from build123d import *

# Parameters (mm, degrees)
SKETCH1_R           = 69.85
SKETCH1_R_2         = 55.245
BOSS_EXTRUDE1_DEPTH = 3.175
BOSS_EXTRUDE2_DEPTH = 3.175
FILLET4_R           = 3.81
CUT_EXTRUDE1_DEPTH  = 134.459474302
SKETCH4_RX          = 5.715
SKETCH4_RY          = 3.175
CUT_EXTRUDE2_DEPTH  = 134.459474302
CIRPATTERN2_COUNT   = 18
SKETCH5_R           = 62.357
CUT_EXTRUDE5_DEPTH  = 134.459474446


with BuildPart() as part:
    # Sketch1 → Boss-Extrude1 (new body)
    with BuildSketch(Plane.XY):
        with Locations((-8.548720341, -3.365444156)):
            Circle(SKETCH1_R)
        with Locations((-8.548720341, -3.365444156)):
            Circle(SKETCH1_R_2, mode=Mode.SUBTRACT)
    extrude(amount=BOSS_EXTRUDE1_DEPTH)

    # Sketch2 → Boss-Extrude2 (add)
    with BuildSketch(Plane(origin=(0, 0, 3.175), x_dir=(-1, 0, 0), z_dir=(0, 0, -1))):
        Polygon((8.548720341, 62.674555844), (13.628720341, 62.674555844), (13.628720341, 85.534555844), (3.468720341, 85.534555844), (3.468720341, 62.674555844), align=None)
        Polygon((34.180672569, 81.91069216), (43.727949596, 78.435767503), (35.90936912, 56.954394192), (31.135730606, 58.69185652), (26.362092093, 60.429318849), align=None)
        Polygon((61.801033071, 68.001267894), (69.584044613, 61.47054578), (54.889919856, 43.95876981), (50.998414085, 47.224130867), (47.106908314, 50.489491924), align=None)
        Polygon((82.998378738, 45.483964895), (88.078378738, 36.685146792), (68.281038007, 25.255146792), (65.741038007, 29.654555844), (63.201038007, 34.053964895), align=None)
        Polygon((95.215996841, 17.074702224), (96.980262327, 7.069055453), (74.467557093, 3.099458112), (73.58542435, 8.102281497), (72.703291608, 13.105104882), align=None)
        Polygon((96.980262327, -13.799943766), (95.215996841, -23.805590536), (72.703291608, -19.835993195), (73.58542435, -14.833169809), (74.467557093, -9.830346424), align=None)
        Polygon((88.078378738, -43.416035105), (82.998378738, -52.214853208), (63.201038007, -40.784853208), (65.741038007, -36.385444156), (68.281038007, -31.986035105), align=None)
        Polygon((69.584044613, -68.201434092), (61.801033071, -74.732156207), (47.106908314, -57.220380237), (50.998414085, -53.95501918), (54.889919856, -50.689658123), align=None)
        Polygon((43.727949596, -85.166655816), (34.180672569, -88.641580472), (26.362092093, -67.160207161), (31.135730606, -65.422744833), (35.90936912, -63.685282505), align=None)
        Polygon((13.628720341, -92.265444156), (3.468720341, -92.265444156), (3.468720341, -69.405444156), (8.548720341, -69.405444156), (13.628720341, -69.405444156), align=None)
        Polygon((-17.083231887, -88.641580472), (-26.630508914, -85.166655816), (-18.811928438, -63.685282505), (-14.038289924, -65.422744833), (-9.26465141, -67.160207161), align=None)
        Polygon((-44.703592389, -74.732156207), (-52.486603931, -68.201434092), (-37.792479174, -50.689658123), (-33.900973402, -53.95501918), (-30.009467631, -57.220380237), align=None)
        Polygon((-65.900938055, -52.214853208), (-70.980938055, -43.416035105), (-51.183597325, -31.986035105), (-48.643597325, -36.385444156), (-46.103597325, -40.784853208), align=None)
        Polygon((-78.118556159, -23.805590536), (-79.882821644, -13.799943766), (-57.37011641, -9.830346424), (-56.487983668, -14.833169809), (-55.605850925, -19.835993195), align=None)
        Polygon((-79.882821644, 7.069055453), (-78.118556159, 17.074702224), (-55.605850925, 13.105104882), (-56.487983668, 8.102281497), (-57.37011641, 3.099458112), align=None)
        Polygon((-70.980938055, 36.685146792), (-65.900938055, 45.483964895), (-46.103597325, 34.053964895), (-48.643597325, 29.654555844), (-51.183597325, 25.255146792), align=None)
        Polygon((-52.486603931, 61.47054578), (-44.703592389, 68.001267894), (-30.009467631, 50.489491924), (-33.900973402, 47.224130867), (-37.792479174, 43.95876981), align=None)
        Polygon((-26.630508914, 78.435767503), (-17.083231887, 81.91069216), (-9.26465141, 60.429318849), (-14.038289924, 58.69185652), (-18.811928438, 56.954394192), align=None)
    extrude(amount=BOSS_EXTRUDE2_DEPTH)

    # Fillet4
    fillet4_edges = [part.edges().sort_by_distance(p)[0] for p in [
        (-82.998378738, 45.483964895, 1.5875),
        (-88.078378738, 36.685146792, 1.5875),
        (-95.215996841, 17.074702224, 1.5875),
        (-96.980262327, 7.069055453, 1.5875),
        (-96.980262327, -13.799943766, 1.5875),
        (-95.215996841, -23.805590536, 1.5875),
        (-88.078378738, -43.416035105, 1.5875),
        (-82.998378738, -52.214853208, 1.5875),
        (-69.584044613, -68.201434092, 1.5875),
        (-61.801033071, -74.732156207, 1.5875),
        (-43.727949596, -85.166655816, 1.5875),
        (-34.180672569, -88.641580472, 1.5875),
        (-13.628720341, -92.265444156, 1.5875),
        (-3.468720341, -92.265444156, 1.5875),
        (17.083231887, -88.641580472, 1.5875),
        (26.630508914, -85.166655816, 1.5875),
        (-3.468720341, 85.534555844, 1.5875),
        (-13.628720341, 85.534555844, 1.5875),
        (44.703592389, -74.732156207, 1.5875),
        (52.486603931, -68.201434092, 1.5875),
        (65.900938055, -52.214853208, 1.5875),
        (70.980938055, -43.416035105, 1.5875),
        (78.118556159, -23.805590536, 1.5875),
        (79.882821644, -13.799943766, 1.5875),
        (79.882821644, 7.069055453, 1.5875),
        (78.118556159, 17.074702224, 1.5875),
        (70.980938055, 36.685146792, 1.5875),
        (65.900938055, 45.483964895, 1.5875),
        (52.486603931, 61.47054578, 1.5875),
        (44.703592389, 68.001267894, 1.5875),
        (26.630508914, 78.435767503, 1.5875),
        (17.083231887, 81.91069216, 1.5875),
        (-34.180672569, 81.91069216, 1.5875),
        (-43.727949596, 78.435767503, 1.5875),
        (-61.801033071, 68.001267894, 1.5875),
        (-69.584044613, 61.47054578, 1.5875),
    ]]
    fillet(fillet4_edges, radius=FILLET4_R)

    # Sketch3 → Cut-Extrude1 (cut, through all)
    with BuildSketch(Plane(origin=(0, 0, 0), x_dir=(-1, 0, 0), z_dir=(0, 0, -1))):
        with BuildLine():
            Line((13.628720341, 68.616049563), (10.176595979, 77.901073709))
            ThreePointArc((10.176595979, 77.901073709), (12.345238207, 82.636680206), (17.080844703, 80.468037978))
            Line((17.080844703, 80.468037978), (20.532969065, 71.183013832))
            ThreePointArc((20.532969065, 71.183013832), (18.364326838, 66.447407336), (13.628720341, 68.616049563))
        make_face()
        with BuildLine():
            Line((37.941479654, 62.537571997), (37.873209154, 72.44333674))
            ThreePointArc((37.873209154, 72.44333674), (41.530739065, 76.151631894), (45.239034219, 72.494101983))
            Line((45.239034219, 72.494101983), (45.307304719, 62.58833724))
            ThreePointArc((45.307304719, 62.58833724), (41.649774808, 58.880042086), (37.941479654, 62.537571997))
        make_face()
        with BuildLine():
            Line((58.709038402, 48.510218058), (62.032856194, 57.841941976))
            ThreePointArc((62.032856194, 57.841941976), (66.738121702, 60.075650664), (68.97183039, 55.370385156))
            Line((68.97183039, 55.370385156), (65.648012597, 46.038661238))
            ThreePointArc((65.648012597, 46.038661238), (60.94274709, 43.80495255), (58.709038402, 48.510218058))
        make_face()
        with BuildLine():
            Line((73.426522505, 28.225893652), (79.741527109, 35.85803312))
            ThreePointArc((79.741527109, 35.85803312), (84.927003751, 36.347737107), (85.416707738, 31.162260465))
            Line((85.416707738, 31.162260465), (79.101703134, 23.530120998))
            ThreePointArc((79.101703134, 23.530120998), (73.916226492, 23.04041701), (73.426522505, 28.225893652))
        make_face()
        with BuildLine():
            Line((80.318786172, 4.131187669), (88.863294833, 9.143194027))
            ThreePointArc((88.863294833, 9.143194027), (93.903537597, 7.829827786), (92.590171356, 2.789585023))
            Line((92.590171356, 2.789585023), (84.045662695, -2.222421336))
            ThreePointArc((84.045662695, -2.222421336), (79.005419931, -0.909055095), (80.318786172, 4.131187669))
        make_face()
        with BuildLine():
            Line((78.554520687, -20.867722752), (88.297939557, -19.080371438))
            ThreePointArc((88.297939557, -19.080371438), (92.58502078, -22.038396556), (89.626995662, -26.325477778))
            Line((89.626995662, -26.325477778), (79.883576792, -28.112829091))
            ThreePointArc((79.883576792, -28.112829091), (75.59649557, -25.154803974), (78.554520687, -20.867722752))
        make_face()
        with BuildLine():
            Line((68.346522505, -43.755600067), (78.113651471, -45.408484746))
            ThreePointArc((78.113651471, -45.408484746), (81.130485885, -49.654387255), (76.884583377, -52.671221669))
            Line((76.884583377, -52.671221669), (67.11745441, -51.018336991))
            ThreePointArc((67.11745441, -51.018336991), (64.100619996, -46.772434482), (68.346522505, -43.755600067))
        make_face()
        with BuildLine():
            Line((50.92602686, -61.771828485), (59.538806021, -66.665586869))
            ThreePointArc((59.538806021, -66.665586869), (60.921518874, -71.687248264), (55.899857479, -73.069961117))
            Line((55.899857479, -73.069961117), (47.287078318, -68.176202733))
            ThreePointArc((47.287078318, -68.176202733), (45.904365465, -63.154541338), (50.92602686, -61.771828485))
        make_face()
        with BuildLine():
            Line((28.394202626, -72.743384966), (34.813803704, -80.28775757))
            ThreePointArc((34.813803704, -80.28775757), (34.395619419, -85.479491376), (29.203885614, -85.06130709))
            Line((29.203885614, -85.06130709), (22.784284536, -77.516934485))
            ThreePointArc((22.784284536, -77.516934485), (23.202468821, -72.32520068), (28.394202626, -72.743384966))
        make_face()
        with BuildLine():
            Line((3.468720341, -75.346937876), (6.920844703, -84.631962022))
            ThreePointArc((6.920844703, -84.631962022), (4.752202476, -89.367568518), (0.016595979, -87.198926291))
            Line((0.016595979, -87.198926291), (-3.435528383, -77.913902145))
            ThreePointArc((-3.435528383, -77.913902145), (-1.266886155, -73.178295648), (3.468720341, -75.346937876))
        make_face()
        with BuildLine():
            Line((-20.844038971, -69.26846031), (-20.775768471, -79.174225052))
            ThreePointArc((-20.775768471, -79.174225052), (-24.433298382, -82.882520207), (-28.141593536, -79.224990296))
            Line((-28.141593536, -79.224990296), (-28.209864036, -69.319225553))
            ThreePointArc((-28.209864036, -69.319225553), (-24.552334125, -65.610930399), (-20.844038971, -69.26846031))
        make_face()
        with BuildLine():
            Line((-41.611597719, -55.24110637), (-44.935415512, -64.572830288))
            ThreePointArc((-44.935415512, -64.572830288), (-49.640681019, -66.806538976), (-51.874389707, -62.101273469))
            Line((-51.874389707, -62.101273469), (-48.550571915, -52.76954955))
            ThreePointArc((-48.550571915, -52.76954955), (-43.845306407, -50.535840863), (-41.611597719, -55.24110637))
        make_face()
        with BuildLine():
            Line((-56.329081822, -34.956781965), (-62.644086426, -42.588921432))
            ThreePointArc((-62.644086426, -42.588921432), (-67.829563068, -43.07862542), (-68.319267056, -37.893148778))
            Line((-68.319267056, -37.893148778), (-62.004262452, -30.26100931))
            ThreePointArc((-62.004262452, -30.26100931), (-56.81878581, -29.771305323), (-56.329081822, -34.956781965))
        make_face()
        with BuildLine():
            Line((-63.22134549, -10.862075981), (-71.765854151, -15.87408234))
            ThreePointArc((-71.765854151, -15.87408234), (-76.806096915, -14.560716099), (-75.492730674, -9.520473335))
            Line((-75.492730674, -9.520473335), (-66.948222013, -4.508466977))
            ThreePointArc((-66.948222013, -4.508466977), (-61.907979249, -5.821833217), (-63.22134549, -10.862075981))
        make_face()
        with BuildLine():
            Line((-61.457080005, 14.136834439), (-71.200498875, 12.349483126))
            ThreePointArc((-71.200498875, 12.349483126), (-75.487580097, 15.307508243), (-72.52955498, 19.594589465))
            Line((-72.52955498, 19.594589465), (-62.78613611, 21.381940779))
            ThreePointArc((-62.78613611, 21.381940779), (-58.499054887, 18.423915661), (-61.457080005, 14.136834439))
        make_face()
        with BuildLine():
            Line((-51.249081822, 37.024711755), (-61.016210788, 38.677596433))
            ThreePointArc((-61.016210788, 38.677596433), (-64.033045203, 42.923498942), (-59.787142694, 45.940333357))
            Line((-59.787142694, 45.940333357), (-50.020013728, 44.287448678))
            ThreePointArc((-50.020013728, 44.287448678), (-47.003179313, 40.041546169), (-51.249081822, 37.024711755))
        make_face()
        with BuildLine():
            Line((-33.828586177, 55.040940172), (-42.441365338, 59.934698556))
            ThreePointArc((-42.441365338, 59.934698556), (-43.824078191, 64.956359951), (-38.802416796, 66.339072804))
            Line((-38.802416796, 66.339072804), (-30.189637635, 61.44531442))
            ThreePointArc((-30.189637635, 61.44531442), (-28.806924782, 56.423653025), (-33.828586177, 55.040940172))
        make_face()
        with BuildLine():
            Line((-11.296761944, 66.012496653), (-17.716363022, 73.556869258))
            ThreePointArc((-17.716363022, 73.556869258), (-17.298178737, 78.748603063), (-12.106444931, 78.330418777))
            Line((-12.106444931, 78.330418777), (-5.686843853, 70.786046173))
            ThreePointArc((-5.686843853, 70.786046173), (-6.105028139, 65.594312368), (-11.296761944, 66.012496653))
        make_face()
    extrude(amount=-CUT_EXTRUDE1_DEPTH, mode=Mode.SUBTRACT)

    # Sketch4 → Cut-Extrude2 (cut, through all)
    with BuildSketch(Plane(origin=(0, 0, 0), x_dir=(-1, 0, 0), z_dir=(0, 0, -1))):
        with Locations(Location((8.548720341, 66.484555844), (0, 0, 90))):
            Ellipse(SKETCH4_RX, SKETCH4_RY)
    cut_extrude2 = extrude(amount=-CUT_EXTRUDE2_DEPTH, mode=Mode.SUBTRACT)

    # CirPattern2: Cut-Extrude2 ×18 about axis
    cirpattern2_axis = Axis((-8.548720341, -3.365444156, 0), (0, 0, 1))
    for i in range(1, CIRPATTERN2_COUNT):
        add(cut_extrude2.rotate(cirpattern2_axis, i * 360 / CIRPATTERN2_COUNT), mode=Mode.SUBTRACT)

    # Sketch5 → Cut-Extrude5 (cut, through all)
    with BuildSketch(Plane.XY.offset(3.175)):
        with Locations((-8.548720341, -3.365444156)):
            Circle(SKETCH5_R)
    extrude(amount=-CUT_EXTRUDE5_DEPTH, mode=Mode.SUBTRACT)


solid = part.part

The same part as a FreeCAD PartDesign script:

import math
import FreeCAD as App
import Part
import Sketcher
from FreeCAD import Vector
Q = App.Units.Quantity


def edges_at(feature, points):
    """Names of the edges that pass closest to the given points."""
    edges = feature.Shape.Edges
    near = lambda p: min(range(len(edges)), key=lambda i: edges[i].distToShape(Part.Vertex(*p))[0])
    return sorted({f"Edge{near(p) + 1}" for p in points})


def add_polygon(sketch, points):
    """Adds a closed chain of lines whose ends are joined by coincident constraints."""
    first, n = sketch.GeometryCount, len(points)
    for a, b in zip(points, points[1:] + points[:1]):
        sketch.addGeometry(Part.LineSegment(App.Vector(*a, 0), App.Vector(*b, 0)), False)
    for i in range(n):
        sketch.addConstraint(Sketcher.Constraint("Coincident", first + i, 2, first + (i + 1) % n, 1))

doc = App.newDocument("Part")
params = doc.addObject("Spreadsheet::Sheet", "Params")
for row, (alias, value) in enumerate([
    ("sketch1_diameter", "5.5 in"),
    ("sketch1_diameter2", "4.35 in"),
    ("pad1_length", "0.125 in"),
    ("sketch2_width", "0.4 in"),
    ("sketch2_height", "0.9 in"),
    ("sketch2_length", "0.4 in"),
    ("sketch2_length2", "0.9 in"),
    ("pad2_length", "0.125 in"),
    ("fillet_radius", "0.15 in"),
    ("sketch3_radius", "0.145 in"),
    ("sketch3_length", "0.39 in"),
    ("sketch5_diameter", "4.91 in"),
], start=1):
    params.set(f"A{row}", alias)
    params.set(f"B{row}", "=" + value)
    params.setAlias(f"B{row}", alias)

body = doc.addObject("PartDesign::Body", "Body")

# Sketch on XY plane
sketch1 = doc.addObject("Sketcher::SketchObject", "Sketch")
body.addObject(sketch1)
sketch1.AttachmentSupport = (doc.XY_Plane, [""])
sketch1.MapMode = "FlatFace"
sketch1.addGeometry([
    Part.Circle(Vector(-9, -3, 0), Vector(0, 0, 1), 70),
    Part.Circle(Vector(-9, -3, 0), Vector(0, 0, 1), 55),
], False)
sketch1.addConstraint([
    Sketcher.Constraint("Coincident", 1, 3, 0, 3),
    Sketcher.Constraint("Diameter", 0, Q("5.5 in")),
    Sketcher.Constraint("Diameter", 1, Q("4.35 in")),
    Sketcher.Constraint("DistanceX", 0, 3, -1, 1, 8.54872),
    Sketcher.Constraint("DistanceY", 0, 3, -1, 1, 3.365444),
])
sketch1.setExpression("Constraints[1]", "Params.sketch1_diameter")
sketch1.setExpression("Constraints[2]", "Params.sketch1_diameter2")
pad1 = doc.addObject("PartDesign::Pad", "Pad")
body.addObject(pad1)
pad1.Profile = sketch1
pad1.setExpression("Length", "Params.pad1_length")

# Sketch on XY plane
sketch2 = doc.addObject("Sketcher::SketchObject", "Sketch001")
body.addObject(sketch2)
sketch2.AttachmentSupport = (doc.XY_Plane, [""])
sketch2.MapMode = "FlatFace"
sketch2.AttachmentOffset = App.Placement(Vector(0, 0, 0.125 * 25.4), App.Rotation())
add_polygon(sketch2, [(-14, 63), (-14, 86), (-3, 86), (-3, 63)])  # lines 0-3
add_polygon(sketch2, [(-44, 78), (-34, 82), (-26, 60), (-31, 59), (-36, 57)])  # lines 4-8
add_polygon(sketch2, [(-70, 61), (-62, 68), (-47, 50), (-55, 44)])  # lines 9-12
add_polygon(sketch2, [(-88, 37), (-83, 45), (-63, 34), (-66, 30), (-68, 25)])  # lines 13-17
add_polygon(sketch2, [(-97, 7), (-95, 17), (-73, 13), (-74, 8), (-74, 3)])  # lines 18-22
add_polygon(sketch2, [(-95, -24), (-97, -14), (-74, -10), (-74, -15), (-73, -20)])  # lines 23-27
add_polygon(sketch2, [(-83, -52), (-88, -43), (-68, -32), (-66, -36), (-63, -41)])  # lines 28-32
add_polygon(sketch2, [(-62, -75), (-70, -68), (-55, -51), (-47, -57)])  # lines 33-36
add_polygon(sketch2, [(-34, -89), (-44, -85), (-36, -64), (-31, -65), (-26, -67)])  # lines 37-41
add_polygon(sketch2, [(-3, -92), (-14, -92), (-14, -69), (-3, -69)])  # lines 42-45
add_polygon(sketch2, [(27, -85), (17, -89), (9, -67), (19, -64)])  # lines 46-49
add_polygon(sketch2, [(52, -68), (45, -75), (30, -57), (34, -54), (38, -51)])  # lines 50-54
add_polygon(sketch2, [(71, -43), (66, -52), (46, -41), (49, -36), (51, -32)])  # lines 55-59
add_polygon(sketch2, [(80, -14), (78, -24), (56, -20), (56, -15), (57, -10)])  # lines 60-64
add_polygon(sketch2, [(78, 17), (80, 7), (57, 3), (56, 8), (56, 13)])  # lines 65-69
add_polygon(sketch2, [(66, 45), (71, 37), (51, 25), (49, 30), (46, 34)])  # lines 70-74
add_polygon(sketch2, [(45, 68), (52, 61), (38, 44), (34, 47), (30, 50)])  # lines 75-79
add_polygon(sketch2, [(17, 82), (27, 78), (19, 57), (14, 59), (9, 60)])  # lines 80-84
sketch2.addConstraint([
    Sketcher.Constraint("Vertical", 0),
    Sketcher.Constraint("Horizontal", 1),
    Sketcher.Constraint("Vertical", 2),
    Sketcher.Constraint("Horizontal", 3),
    Sketcher.Constraint("Horizontal", 42),
    Sketcher.Constraint("Vertical", 43),
    Sketcher.Constraint("Horizontal", 44),
    Sketcher.Constraint("Vertical", 45),
    Sketcher.Constraint("Perpendicular", 4, 5),
    Sketcher.Constraint("Perpendicular", 5, 6),
    Sketcher.Constraint("Parallel", 6, 7),
    Sketcher.Constraint("Perpendicular", 7, 8),
    Sketcher.Constraint("Perpendicular", 9, 10),
    Sketcher.Constraint("Perpendicular", 10, 11),
    Sketcher.Constraint("Perpendicular", 11, 12),
    Sketcher.Constraint("Perpendicular", 13, 14),
    Sketcher.Constraint("Perpendicular", 14, 15),
    Sketcher.Constraint("Parallel", 15, 16),
    Sketcher.Constraint("Perpendicular", 16, 17),
    Sketcher.Constraint("Perpendicular", 18, 19),
    Sketcher.Constraint("Perpendicular", 19, 20),
    Sketcher.Constraint("Parallel", 20, 21),
    Sketcher.Constraint("Perpendicular", 21, 22),
    Sketcher.Constraint("Perpendicular", 23, 24),
    Sketcher.Constraint("Perpendicular", 24, 25),
    Sketcher.Constraint("Parallel", 25, 26),
    Sketcher.Constraint("Perpendicular", 26, 27),
    Sketcher.Constraint("Perpendicular", 28, 29),
    Sketcher.Constraint("Perpendicular", 29, 30),
    Sketcher.Constraint("Parallel", 30, 31),
    Sketcher.Constraint("Perpendicular", 31, 32),
    Sketcher.Constraint("Perpendicular", 33, 34),
    Sketcher.Constraint("Perpendicular", 34, 35),
    Sketcher.Constraint("Perpendicular", 35, 36),
    Sketcher.Constraint("Perpendicular", 37, 38),
    Sketcher.Constraint("Perpendicular", 38, 39),
    Sketcher.Constraint("Parallel", 39, 40),
    Sketcher.Constraint("Perpendicular", 40, 41),
    Sketcher.Constraint("Perpendicular", 8, 46),
    Sketcher.Constraint("Perpendicular", 46, 47),
    Sketcher.Constraint("Perpendicular", 47, 48),
    Sketcher.Constraint("Perpendicular", 48, 49),
    Sketcher.Constraint("Perpendicular", 12, 50),
    Sketcher.Constraint("Perpendicular", 50, 51),
    Sketcher.Constraint("Perpendicular", 51, 52),
    Sketcher.Constraint("Parallel", 52, 53),
    Sketcher.Constraint("Perpendicular", 53, 54),
    Sketcher.Constraint("Perpendicular", 17, 55),
    Sketcher.Constraint("Perpendicular", 55, 56),
    Sketcher.Constraint("Perpendicular", 56, 57),
    Sketcher.Constraint("Parallel", 57, 58),
    Sketcher.Constraint("Perpendicular", 58, 59),
    Sketcher.Constraint("Perpendicular", 22, 60),
    Sketcher.Constraint("Perpendicular", 60, 61),
    Sketcher.Constraint("Perpendicular", 61, 62),
    Sketcher.Constraint("Parallel", 62, 63),
    Sketcher.Constraint("Perpendicular", 63, 64),
    Sketcher.Constraint("Perpendicular", 27, 65),
    Sketcher.Constraint("Perpendicular", 65, 66),
    Sketcher.Constraint("Perpendicular", 66, 67),
    Sketcher.Constraint("Parallel", 67, 68),
    Sketcher.Constraint("Perpendicular", 68, 69),
    Sketcher.Constraint("Perpendicular", 32, 70),
    Sketcher.Constraint("Perpendicular", 70, 71),
    Sketcher.Constraint("Perpendicular", 71, 72),
    Sketcher.Constraint("Parallel", 72, 73),
    Sketcher.Constraint("Perpendicular", 73, 74),
    Sketcher.Constraint("Perpendicular", 36, 75),
    Sketcher.Constraint("Perpendicular", 75, 76),
    Sketcher.Constraint("Perpendicular", 76, 77),
    Sketcher.Constraint("Parallel", 77, 78),
    Sketcher.Constraint("Perpendicular", 78, 79),
    Sketcher.Constraint("Perpendicular", 41, 80),
    Sketcher.Constraint("Perpendicular", 80, 81),
    Sketcher.Constraint("Perpendicular", 81, 82),
    Sketcher.Constraint("Parallel", 82, 83),
    Sketcher.Constraint("Perpendicular", 83, 84),
    Sketcher.Constraint("Horizontal", 41, 2, 46, 2),
    Sketcher.Constraint("Horizontal", 40, 2, 47, 2),
    Sketcher.Constraint("Horizontal", 38, 2, 48, 2),
    Sketcher.Constraint("Horizontal", 36, 2, 50, 2),
    Sketcher.Constraint("Horizontal", 35, 2, 51, 2),
    Sketcher.Constraint("Horizontal", 34, 2, 53, 2),
    Sketcher.Constraint("Horizontal", 32, 2, 55, 2),
    Sketcher.Constraint("Horizontal", 31, 2, 56, 2),
    Sketcher.Constraint("Horizontal", 30, 2, 57, 2),
    Sketcher.Constraint("Horizontal", 29, 2, 58, 2),
    Sketcher.Constraint("Horizontal", 27, 2, 60, 2),
    Sketcher.Constraint("Horizontal", 26, 2, 61, 2),
    Sketcher.Constraint("Horizontal", 25, 2, 62, 2),
    Sketcher.Constraint("Horizontal", 24, 2, 63, 2),
    Sketcher.Constraint("Horizontal", 22, 2, 65, 2),
    Sketcher.Constraint("Horizontal", 21, 2, 66, 2),
    Sketcher.Constraint("Horizontal", 20, 2, 67, 2),
    Sketcher.Constraint("Horizontal", 19, 2, 68, 2),
    Sketcher.Constraint("Horizontal", 17, 2, 70, 2),
    Sketcher.Constraint("Horizontal", 16, 2, 71, 2),
    Sketcher.Constraint("Horizontal", 15, 2, 72, 2),
    Sketcher.Constraint("Horizontal", 14, 2, 73, 2),
    Sketcher.Constraint("Horizontal", 12, 2, 75, 2),
    Sketcher.Constraint("Horizontal", 11, 2, 76, 2),
    Sketcher.Constraint("Horizontal", 10, 2, 78, 2),
    Sketcher.Constraint("Horizontal", 8, 2, 80, 2),
    Sketcher.Constraint("Horizontal", 7, 2, 81, 2),
    Sketcher.Constraint("Horizontal", 6, 2, 82, 2),
    Sketcher.Constraint("Horizontal", 5, 2, 83, 2),
    Sketcher.Constraint("Vertical", 22, 2, 23, 2),
    Sketcher.Constraint("Vertical", 21, 2, 24, 2),
    Sketcher.Constraint("Vertical", 20, 2, 25, 2),
    Sketcher.Constraint("Vertical", 19, 2, 26, 2),
    Sketcher.Constraint("Vertical", 17, 2, 28, 2),
    Sketcher.Constraint("Vertical", 16, 2, 29, 2),
    Sketcher.Constraint("Vertical", 15, 2, 30, 2),
    Sketcher.Constraint("Vertical", 14, 2, 31, 2),
    Sketcher.Constraint("Vertical", 12, 2, 33, 2),
    Sketcher.Constraint("Vertical", 11, 2, 34, 2),
    Sketcher.Constraint("Vertical", 10, 2, 35, 2),
    Sketcher.Constraint("Vertical", 8, 2, 37, 2),
    Sketcher.Constraint("Vertical", 7, 2, 38, 2),
    Sketcher.Constraint("Vertical", 6, 2, 39, 2),
    Sketcher.Constraint("Vertical", 5, 2, 40, 2),
    Sketcher.Constraint("Vertical", 3, 2, 42, 2),
    Sketcher.Constraint("Vertical", 2, 2, 44, 2),
    Sketcher.Constraint("Vertical", 64, 2, 65, 2),
    Sketcher.Constraint("Vertical", 63, 2, 66, 2),
    Sketcher.Constraint("Vertical", 59, 2, 70, 2),
    Sketcher.Constraint("Vertical", 58, 2, 71, 2),
    Sketcher.Constraint("Vertical", 54, 2, 75, 2),
    Sketcher.Constraint("Vertical", 53, 2, 76, 2),
    Sketcher.Constraint("Vertical", 52, 2, 77, 2),
    Sketcher.Constraint("Vertical", 49, 2, 80, 2),
    Sketcher.Constraint("Vertical", 48, 2, 81, 2),
    Sketcher.Constraint("Equal", 2, 43),
    Sketcher.Constraint("Equal", 6, 7),
    Sketcher.Constraint("Equal", 4, 9),
    Sketcher.Constraint("Equal", 8, 10),
    Sketcher.Constraint("Equal", 11, 13),
    Sketcher.Constraint("Equal", 12, 14),
    Sketcher.Constraint("Equal", 7, 15),
    Sketcher.Constraint("Equal", 13, 18),
    Sketcher.Constraint("Equal", 17, 19),
    Sketcher.Constraint("Equal", 16, 20),
    Sketcher.Constraint("Equal", 40, 52),
    Sketcher.Constraint("DistanceX", 1, 1, 1, 2, Q("0.4 in")),
    Sketcher.Constraint("DistanceY", 0, 1, 0, 2, Q("0.9 in")),
    Sketcher.Constraint("Angle", 4, Q("20 deg")),
    Sketcher.Constraint("Angle", 9, Q("40 deg")),
    Sketcher.Constraint("Angle", 13, Q("60 deg")),
    Sketcher.Constraint("Angle", 18, Q("80 deg")),
    Sketcher.Constraint("Distance", 4, Q("0.4 in")),
    Sketcher.Constraint("Distance", 5, Q("0.9 in")),
    Sketcher.Constraint("DistanceX", 0, 2, -1, 1, 13.62872),
    Sketcher.Constraint("DistanceY", -1, 1, 5, 2, 60.429319),
    Sketcher.Constraint("DistanceX", 6, 2, -1, 1, 31.135731),
    Sketcher.Constraint("DistanceX", 10, 2, -1, 1, 47.106908),
    Sketcher.Constraint("DistanceY", -1, 1, 10, 2, 50.489492),
    Sketcher.Constraint("DistanceX", 13, 2, -1, 1, 82.998379),
    Sketcher.Constraint("DistanceX", 19, 2, -1, 1, 72.703292),
    Sketcher.Constraint("DistanceY", -1, 1, 20, 2, 8.102281),
    Sketcher.Constraint("DistanceY", 25, 2, -1, 1, 14.83317),
    Sketcher.Constraint("DistanceY", 34, 2, -1, 1, 50.689658),
    Sketcher.Constraint("DistanceY", 41, 2, -1, 1, 88.64158),
    Sketcher.Constraint("DistanceX", -1, 1, 46, 2, 17.083232),
    Sketcher.Constraint("DistanceX", -1, 1, 53, 2, 37.792479),
    Sketcher.Constraint("DistanceX", -1, 1, 55, 2, 65.900938),
    Sketcher.Constraint("DistanceX", -1, 1, 61, 2, 55.605851),
    Sketcher.Constraint("DistanceY", -1, 1, 0, 2, 85.534556),
    Sketcher.Constraint("DistanceY", -1, 1, 13, 2, 45.483965),
    Sketcher.Constraint("DistanceY", 28, 2, -1, 1, 43.416035),
    Sketcher.Constraint("DistanceY", 42, 2, -1, 1, 92.265444),
])
sketch2.setExpression("Constraints[228]", "Params.sketch2_width")
sketch2.setExpression("Constraints[229]", "Params.sketch2_height")
sketch2.setExpression("Constraints[234]", "Params.sketch2_length")
sketch2.setExpression("Constraints[235]", "Params.sketch2_length2")
pad2 = doc.addObject("PartDesign::Pad", "Pad001")
body.addObject(pad2)
pad2.Profile = sketch2
pad2.setExpression("Length", "Params.pad2_length")
pad2.Reversed = True
doc.recompute()

fillet = doc.addObject("PartDesign::Fillet", "Fillet")
body.addObject(fillet)
fillet.Base = (pad2, edges_at(pad2, [
    (-82.998, 45.484, 1.587),
    (-88.078, 36.685, 1.587),
    (-95.216, 17.075, 1.587),
    (-96.98, 7.069, 1.587),
    (-96.98, -13.8, 1.587),
    (-95.216, -23.806, 1.587),
    (-88.078, -43.416, 1.587),
    (-82.998, -52.215, 1.587),
    (-69.584, -68.201, 1.587),
    (-61.801, -74.732, 1.587),
    (-43.728, -85.167, 1.587),
    (-34.181, -88.642, 1.587),
    (-13.629, -92.265, 1.587),
    (-3.469, -92.265, 1.587),
    (17.083, -88.642, 1.587),
    (26.631, -85.167, 1.587),
    (-3.469, 85.535, 1.587),
    (-13.629, 85.535, 1.587),
    (44.704, -74.732, 1.587),
    (52.487, -68.201, 1.587),
    (65.901, -52.215, 1.587),
    (70.981, -43.416, 1.587),
    (78.119, -23.806, 1.587),
    (79.883, -13.8, 1.587),
    (79.883, 7.069, 1.587),
    (78.119, 17.075, 1.587),
    (70.981, 36.685, 1.587),
    (65.901, 45.484, 1.587),
    (52.487, 61.471, 1.587),
    (44.704, 68.001, 1.587),
    (26.631, 78.436, 1.587),
    (17.083, 81.911, 1.587),
    (-34.181, 81.911, 1.587),
    (-43.728, 78.436, 1.587),
    (-61.801, 68.001, 1.587),
    (-69.584, 61.471, 1.587),
]))
fillet.setExpression("Radius", "Params.fillet_radius")

# Sketch on XY plane
sketch3 = doc.addObject("Sketcher::SketchObject", "Sketch002")
body.addObject(sketch3)
sketch3.AttachmentSupport = (doc.XY_Plane, [""])
sketch3.MapMode = "FlatFace"
sketch3.addGeometry([
    Part.LineSegment(Vector(-10.2, 77.9, 0), Vector(-13.6, 68.6, 0)),  # 0
    Part.ArcOfCircle(Part.Circle(Vector(-17.1, 69.9, 0), Vector(0, 0, 1), 3.7), math.radians(160), math.radians(340)),  # 1
    Part.LineSegment(Vector(-20.5, 71.2, 0), Vector(-17.1, 80.5, 0)),  # 2
    Part.ArcOfCircle(Part.Circle(Vector(-13.6, 79.2, 0), Vector(0, 0, 1), 3.7), math.radians(-20), math.radians(160)),  # 3
    Part.LineSegment(Vector(-37.9, 72.4, 0), Vector(-37.9, 62.5, 0)),  # 4
    Part.ArcOfCircle(Part.Circle(Vector(-41.6, 62.6, 0), Vector(0, 0, 1), 3.7), math.radians(180), math.radians(360)),  # 5
    Part.LineSegment(Vector(-45.3, 62.6, 0), Vector(-45.2, 72.5, 0)),  # 6
    Part.ArcOfCircle(Part.Circle(Vector(-41.6, 72.5, 0), Vector(0, 0, 1), 3.7), math.radians(0), math.radians(180)),  # 7
    Part.LineSegment(Vector(-62, 57.8, 0), Vector(-58.7, 48.5, 0)),  # 8
    Part.ArcOfCircle(Part.Circle(Vector(-62.2, 47.3, 0), Vector(0, 0, 1), 3.7), math.radians(-160), math.radians(20)),  # 9
    Part.LineSegment(Vector(-65.6, 46, 0), Vector(-69, 55.4, 0)),  # 10
    Part.ArcOfCircle(Part.Circle(Vector(-65.5, 56.6, 0), Vector(0, 0, 1), 3.7), math.radians(20), math.radians(200)),  # 11
    Part.LineSegment(Vector(-79.7, 35.9, 0), Vector(-73.4, 28.2, 0)),  # 12
    Part.ArcOfCircle(Part.Circle(Vector(-76.3, 25.9, 0), Vector(0, 0, 1), 3.7), math.radians(-140), math.radians(40)),  # 13
    Part.LineSegment(Vector(-79.1, 23.5, 0), Vector(-85.4, 31.2, 0)),  # 14
    Part.ArcOfCircle(Part.Circle(Vector(-82.6, 33.5, 0), Vector(0, 0, 1), 3.7), math.radians(40), math.radians(220)),  # 15
    Part.LineSegment(Vector(-88.9, 9.1, 0), Vector(-80.3, 4.1, 0)),  # 16
    Part.ArcOfCircle(Part.Circle(Vector(-82.2, 1, 0), Vector(0, 0, 1), 3.7), math.radians(-120), math.radians(60)),  # 17
    Part.LineSegment(Vector(-84, -2.2, 0), Vector(-92.6, 2.8, 0)),  # 18
    Part.ArcOfCircle(Part.Circle(Vector(-90.7, 6, 0), Vector(0, 0, 1), 3.7), math.radians(60), math.radians(240)),  # 19
    Part.LineSegment(Vector(-88.3, -19.1, 0), Vector(-78.6, -20.9, 0)),  # 20
    Part.ArcOfCircle(Part.Circle(Vector(-79.2, -24.5, 0), Vector(0, 0, 1), 3.7), math.radians(-100), math.radians(80)),  # 21
    Part.LineSegment(Vector(-79.9, -28.1, 0), Vector(-89.6, -26.3, 0)),  # 22
    Part.ArcOfCircle(Part.Circle(Vector(-89, -22.7, 0), Vector(0, 0, 1), 3.7), math.radians(80), math.radians(260)),  # 23
    Part.LineSegment(Vector(-78.1, -45.4, 0), Vector(-68.3, -43.8, 0)),  # 24
    Part.ArcOfCircle(Part.Circle(Vector(-67.7, -47.4, 0), Vector(0, 0, 1), 3.7), math.radians(-80), math.radians(100)),  # 25
    Part.LineSegment(Vector(-67.1, -51, 0), Vector(-76.9, -52.7, 0)),  # 26
    Part.ArcOfCircle(Part.Circle(Vector(-77.5, -49, 0), Vector(0, 0, 1), 3.7), math.radians(100), math.radians(280)),  # 27
    Part.LineSegment(Vector(-59.5, -66.7, 0), Vector(-50.9, -61.8, 0)),  # 28
    Part.ArcOfCircle(Part.Circle(Vector(-49.1, -65, 0), Vector(0, 0, 1), 3.7), math.radians(-60), math.radians(120)),  # 29
    Part.LineSegment(Vector(-47.3, -68.2, 0), Vector(-55.9, -73.1, 0)),  # 30
    Part.ArcOfCircle(Part.Circle(Vector(-57.7, -69.9, 0), Vector(0, 0, 1), 3.7), math.radians(120), math.radians(300)),  # 31
    Part.LineSegment(Vector(-34.8, -80.3, 0), Vector(-28.4, -72.7, 0)),  # 32
    Part.ArcOfCircle(Part.Circle(Vector(-25.6, -75.1, 0), Vector(0, 0, 1), 3.7), math.radians(-40), math.radians(140)),  # 33
    Part.LineSegment(Vector(-22.8, -77.5, 0), Vector(-29.2, -85.1, 0)),  # 34
    Part.ArcOfCircle(Part.Circle(Vector(-32, -82.7, 0), Vector(0, 0, 1), 3.7), math.radians(140), math.radians(320)),  # 35
    Part.LineSegment(Vector(-6.9, -84.6, 0), Vector(-3.5, -75.3, 0)),  # 36
    Part.ArcOfCircle(Part.Circle(Vector(0, -76.6, 0), Vector(0, 0, 1), 3.7), math.radians(-20), math.radians(160)),  # 37
    Part.LineSegment(Vector(3.4, -77.9, 0), Vector(0, -87.2, 0)),  # 38
    Part.ArcOfCircle(Part.Circle(Vector(-3.5, -85.9, 0), Vector(0, 0, 1), 3.7), math.radians(160), math.radians(340)),  # 39
    Part.LineSegment(Vector(20.8, -79.2, 0), Vector(20.8, -69.3, 0)),  # 40
    Part.ArcOfCircle(Part.Circle(Vector(24.5, -69.3, 0), Vector(0, 0, 1), 3.7), math.radians(0), math.radians(180)),  # 41
    Part.LineSegment(Vector(28.2, -69.3, 0), Vector(28.1, -79.2, 0)),  # 42
    Part.ArcOfCircle(Part.Circle(Vector(24.5, -79.2, 0), Vector(0, 0, 1), 3.7), math.radians(180), math.radians(360)),  # 43
    Part.LineSegment(Vector(44.9, -64.6, 0), Vector(41.6, -55.2, 0)),  # 44
    Part.ArcOfCircle(Part.Circle(Vector(45.1, -54, 0), Vector(0, 0, 1), 3.7), math.radians(20), math.radians(200)),  # 45
    Part.LineSegment(Vector(48.6, -52.8, 0), Vector(51.9, -62.1, 0)),  # 46
    Part.ArcOfCircle(Part.Circle(Vector(48.4, -63.3, 0), Vector(0, 0, 1), 3.7), math.radians(-160), math.radians(20)),  # 47
    Part.LineSegment(Vector(62.6, -42.6, 0), Vector(56.3, -35, 0)),  # 48
    Part.ArcOfCircle(Part.Circle(Vector(59.2, -32.6, 0), Vector(0, 0, 1), 3.7), math.radians(40), math.radians(220)),  # 49
    Part.LineSegment(Vector(62, -30.3, 0), Vector(68.3, -37.9, 0)),  # 50
    Part.ArcOfCircle(Part.Circle(Vector(65.5, -40.2, 0), Vector(0, 0, 1), 3.7), math.radians(-140), math.radians(40)),  # 51
    Part.LineSegment(Vector(71.8, -15.9, 0), Vector(63.2, -10.9, 0)),  # 52
    Part.ArcOfCircle(Part.Circle(Vector(65.1, -7.7, 0), Vector(0, 0, 1), 3.7), math.radians(60), math.radians(240)),  # 53
    Part.LineSegment(Vector(66.9, -4.5, 0), Vector(75.5, -9.5, 0)),  # 54
    Part.ArcOfCircle(Part.Circle(Vector(73.6, -12.7, 0), Vector(0, 0, 1), 3.7), math.radians(-120), math.radians(60)),  # 55
    Part.LineSegment(Vector(71.2, 12.3, 0), Vector(61.5, 14.1, 0)),  # 56
    Part.ArcOfCircle(Part.Circle(Vector(62.1, 17.8, 0), Vector(0, 0, 1), 3.7), math.radians(80), math.radians(260)),  # 57
    Part.LineSegment(Vector(62.8, 21.4, 0), Vector(72.5, 19.6, 0)),  # 58
    Part.ArcOfCircle(Part.Circle(Vector(71.9, 16, 0), Vector(0, 0, 1), 3.7), math.radians(-100), math.radians(80)),  # 59
    Part.LineSegment(Vector(61, 38.7, 0), Vector(51.2, 37, 0)),  # 60
    Part.ArcOfCircle(Part.Circle(Vector(50.6, 40.7, 0), Vector(0, 0, 1), 3.7), math.radians(100), math.radians(280)),  # 61
    Part.LineSegment(Vector(50, 44.3, 0), Vector(59.8, 45.9, 0)),  # 62
    Part.ArcOfCircle(Part.Circle(Vector(60.4, 42.3, 0), Vector(0, 0, 1), 3.7), math.radians(-80), math.radians(100)),  # 63
    Part.LineSegment(Vector(42.4, 59.9, 0), Vector(33.8, 55, 0)),  # 64
    Part.ArcOfCircle(Part.Circle(Vector(32, 58.2, 0), Vector(0, 0, 1), 3.7), math.radians(120), math.radians(300)),  # 65
    Part.LineSegment(Vector(30.2, 61.4, 0), Vector(38.8, 66.3, 0)),  # 66
    Part.ArcOfCircle(Part.Circle(Vector(40.6, 63.1, 0), Vector(0, 0, 1), 3.7), math.radians(-60), math.radians(120)),  # 67
    Part.LineSegment(Vector(17.7, 73.6, 0), Vector(11.3, 66, 0)),  # 68
    Part.ArcOfCircle(Part.Circle(Vector(8.5, 68.4, 0), Vector(0, 0, 1), 3.7), math.radians(140), math.radians(320)),  # 69
    Part.LineSegment(Vector(5.7, 70.8, 0), Vector(12.1, 78.3, 0)),  # 70
    Part.ArcOfCircle(Part.Circle(Vector(14.9, 75.9, 0), Vector(0, 0, 1), 3.7), math.radians(-40), math.radians(140)),  # 71
], False)
sketch3.addConstraint([
    Sketcher.Constraint("Tangent", 0, 2, 1, 2),
    Sketcher.Constraint("Tangent", 1, 1, 2, 1),
    Sketcher.Constraint("Tangent", 2, 2, 3, 2),
    Sketcher.Constraint("Tangent", 3, 1, 0, 1),
    Sketcher.Constraint("Tangent", 4, 2, 5, 2),
    Sketcher.Constraint("Tangent", 5, 1, 6, 1),
    Sketcher.Constraint("Tangent", 6, 2, 7, 2),
    Sketcher.Constraint("Tangent", 7, 1, 4, 1),
    Sketcher.Constraint("Tangent", 8, 2, 9, 2),
    Sketcher.Constraint("Tangent", 9, 1, 10, 1),
    Sketcher.Constraint("Tangent", 10, 2, 11, 2),
    Sketcher.Constraint("Tangent", 11, 1, 8, 1),
    Sketcher.Constraint("Tangent", 12, 2, 13, 2),
    Sketcher.Constraint("Tangent", 13, 1, 14, 1),
    Sketcher.Constraint("Tangent", 14, 2, 15, 2),
    Sketcher.Constraint("Tangent", 15, 1, 12, 1),
    Sketcher.Constraint("Tangent", 16, 2, 17, 2),
    Sketcher.Constraint("Tangent", 17, 1, 18, 1),
    Sketcher.Constraint("Tangent", 18, 2, 19, 2),
    Sketcher.Constraint("Tangent", 19, 1, 16, 1),
    Sketcher.Constraint("Tangent", 20, 2, 21, 2),
    Sketcher.Constraint("Tangent", 21, 1, 22, 1),
    Sketcher.Constraint("Tangent", 22, 2, 23, 2),
    Sketcher.Constraint("Tangent", 23, 1, 20, 1),
    Sketcher.Constraint("Tangent", 24, 2, 25, 2),
    Sketcher.Constraint("Tangent", 25, 1, 26, 1),
    Sketcher.Constraint("Tangent", 26, 2, 27, 2),
    Sketcher.Constraint("Tangent", 27, 1, 24, 1),
    Sketcher.Constraint("Tangent", 28, 2, 29, 2),
    Sketcher.Constraint("Tangent", 29, 1, 30, 1),
    Sketcher.Constraint("Tangent", 30, 2, 31, 2),
    Sketcher.Constraint("Tangent", 31, 1, 28, 1),
    Sketcher.Constraint("Tangent", 32, 2, 33, 2),
    Sketcher.Constraint("Tangent", 33, 1, 34, 1),
    Sketcher.Constraint("Tangent", 34, 2, 35, 2),
    Sketcher.Constraint("Tangent", 35, 1, 32, 1),
    Sketcher.Constraint("Tangent", 36, 2, 37, 2),
    Sketcher.Constraint("Tangent", 37, 1, 38, 1),
    Sketcher.Constraint("Tangent", 38, 2, 39, 2),
    Sketcher.Constraint("Tangent", 39, 1, 36, 1),
    Sketcher.Constraint("Tangent", 40, 2, 41, 2),
    Sketcher.Constraint("Tangent", 41, 1, 42, 1),
    Sketcher.Constraint("Tangent", 42, 2, 43, 2),
    Sketcher.Constraint("Tangent", 43, 1, 40, 1),
    Sketcher.Constraint("Tangent", 44, 2, 45, 2),
    Sketcher.Constraint("Tangent", 45, 1, 46, 1),
    Sketcher.Constraint("Tangent", 46, 2, 47, 2),
    Sketcher.Constraint("Tangent", 47, 1, 44, 1),
    Sketcher.Constraint("Tangent", 48, 2, 49, 2),
    Sketcher.Constraint("Tangent", 49, 1, 50, 1),
    Sketcher.Constraint("Tangent", 50, 2, 51, 2),
    Sketcher.Constraint("Tangent", 51, 1, 48, 1),
    Sketcher.Constraint("Tangent", 52, 2, 53, 2),
    Sketcher.Constraint("Tangent", 53, 1, 54, 1),
    Sketcher.Constraint("Tangent", 54, 2, 55, 2),
    Sketcher.Constraint("Tangent", 55, 1, 52, 1),
    Sketcher.Constraint("Tangent", 56, 2, 57, 2),
    Sketcher.Constraint("Tangent", 57, 1, 58, 1),
    Sketcher.Constraint("Tangent", 58, 2, 59, 2),
    Sketcher.Constraint("Tangent", 59, 1, 56, 1),
    Sketcher.Constraint("Tangent", 60, 2, 61, 2),
    Sketcher.Constraint("Tangent", 61, 1, 62, 1),
    Sketcher.Constraint("Tangent", 62, 2, 63, 2),
    Sketcher.Constraint("Tangent", 63, 1, 60, 1),
    Sketcher.Constraint("Tangent", 64, 2, 65, 2),
    Sketcher.Constraint("Tangent", 65, 1, 66, 1),
    Sketcher.Constraint("Tangent", 66, 2, 67, 2),
    Sketcher.Constraint("Tangent", 67, 1, 64, 1),
    Sketcher.Constraint("Tangent", 68, 2, 69, 2),
    Sketcher.Constraint("Tangent", 69, 1, 70, 1),
    Sketcher.Constraint("Tangent", 70, 2, 71, 2),
    Sketcher.Constraint("Tangent", 71, 1, 68, 1),
    Sketcher.Constraint("Equal", 1, 3),
    Sketcher.Constraint("Equal", 3, 5),
    Sketcher.Constraint("Equal", 5, 7),
    Sketcher.Constraint("Equal", 7, 9),
    Sketcher.Constraint("Equal", 9, 11),
    Sketcher.Constraint("Equal", 11, 13),
    Sketcher.Constraint("Equal", 13, 15),
    Sketcher.Constraint("Equal", 15, 17),
    Sketcher.Constraint("Equal", 17, 19),
    Sketcher.Constraint("Equal", 19, 21),
    Sketcher.Constraint("Equal", 21, 23),
    Sketcher.Constraint("Equal", 23, 25),
    Sketcher.Constraint("Equal", 25, 27),
    Sketcher.Constraint("Equal", 27, 29),
    Sketcher.Constraint("Equal", 29, 31),
    Sketcher.Constraint("Equal", 31, 33),
    Sketcher.Constraint("Equal", 33, 35),
    Sketcher.Constraint("Equal", 35, 37),
    Sketcher.Constraint("Equal", 37, 39),
    Sketcher.Constraint("Equal", 39, 41),
    Sketcher.Constraint("Equal", 41, 43),
    Sketcher.Constraint("Equal", 43, 45),
    Sketcher.Constraint("Equal", 45, 47),
    Sketcher.Constraint("Equal", 47, 49),
    Sketcher.Constraint("Equal", 49, 51),
    Sketcher.Constraint("Equal", 51, 53),
    Sketcher.Constraint("Equal", 53, 55),
    Sketcher.Constraint("Equal", 55, 57),
    Sketcher.Constraint("Equal", 57, 59),
    Sketcher.Constraint("Equal", 59, 61),
    Sketcher.Constraint("Equal", 61, 63),
    Sketcher.Constraint("Equal", 63, 65),
    Sketcher.Constraint("Equal", 65, 67),
    Sketcher.Constraint("Equal", 67, 69),
    Sketcher.Constraint("Equal", 69, 71),
    Sketcher.Constraint("Parallel", 2, 36),
    Sketcher.Constraint("Parallel", 6, 40),
    Sketcher.Constraint("Parallel", 10, 44),
    Sketcher.Constraint("Parallel", 14, 48),
    Sketcher.Constraint("Parallel", 18, 52),
    Sketcher.Constraint("Parallel", 22, 56),
    Sketcher.Constraint("Parallel", 26, 60),
    Sketcher.Constraint("Parallel", 30, 64),
    Sketcher.Constraint("Parallel", 34, 68),
    Sketcher.Constraint("Vertical", 3, 3, 0, 2),
    Sketcher.Constraint("Vertical", 39, 3, 36, 2),
    Sketcher.Constraint("Equal", 2, 4),
    Sketcher.Constraint("Equal", 6, 8),
    Sketcher.Constraint("Equal", 10, 12),
    Sketcher.Constraint("Equal", 14, 16),
    Sketcher.Constraint("Equal", 18, 20),
    Sketcher.Constraint("Equal", 22, 24),
    Sketcher.Constraint("Equal", 26, 28),
    Sketcher.Constraint("Equal", 30, 32),
    Sketcher.Constraint("Equal", 38, 40),
    Sketcher.Constraint("Equal", 42, 44),
    Sketcher.Constraint("Equal", 46, 48),
    Sketcher.Constraint("Equal", 50, 52),
    Sketcher.Constraint("Equal", 54, 56),
    Sketcher.Constraint("Equal", 58, 60),
    Sketcher.Constraint("Equal", 62, 64),
    Sketcher.Constraint("Equal", 66, 68),
    Sketcher.Constraint("Radius", 1, Q("0.145 in")),
    Sketcher.Constraint("Distance", 0, Q("0.39 in")),
    Sketcher.Constraint("DistanceY", -1, 1, 7, 1, Q("2.8520999 in")),
    Sketcher.Constraint("DistanceY", -1, 1, 59, 1, Q("0.4862001 in")),
    Sketcher.Constraint("DistanceY", -1, 1, 6, 2, 72.494102),
    Sketcher.Constraint("DistanceY", 24, 2, -1, 1, 43.7556),
    Sketcher.Constraint("DistanceX", -1, 1, 59, 1, 71.200499),
    Sketcher.Constraint("DistanceY", -1, 1, 67, 1, 59.934699),
    Sketcher.Constraint("DistanceY", -1, 1, 1, 3, 69.899532),
    Sketcher.Constraint("DistanceX", 3, 3, -1, 1, 13.62872),
    Sketcher.Constraint("DistanceX", 7, 3, -1, 1, 41.556122),
    Sketcher.Constraint("DistanceY", -1, 1, 9, 3, 47.27444),
    Sketcher.Constraint("DistanceY", -1, 1, 19, 3, 5.96639),
    Sketcher.Constraint("DistanceX", 21, 3, -1, 1, 79.219049),
    Sketcher.Constraint("DistanceX", 25, 3, -1, 1, 67.731988),
    Sketcher.Constraint("DistanceY", 25, 3, -1, 1, 47.386969),
    Sketcher.Constraint("DistanceX", 31, 3, -1, 1, 57.719332),
    Sketcher.Constraint("DistanceY", 33, 3, -1, 1, 75.13016),
    Sketcher.Constraint("DistanceY", 37, 3, -1, 1, 76.63042),
    Sketcher.Constraint("DistanceX", 39, 3, -1, 1, 3.46872),
    Sketcher.Constraint("DistanceX", -1, 1, 41, 3, 24.526952),
    Sketcher.Constraint("DistanceY", 47, 3, -1, 1, 63.337052),
    Sketcher.Constraint("DistanceY", 53, 3, -1, 1, 7.685271),
    Sketcher.Constraint("DistanceX", -1, 1, 57, 3, 62.121608),
    Sketcher.Constraint("DistanceY", -1, 1, 61, 3, 40.65608),
    Sketcher.Constraint("DistanceX", -1, 1, 65, 3, 32.009112),
    Sketcher.Constraint("DistanceX", -1, 1, 67, 3, 40.621891),
    Sketcher.Constraint("DistanceY", -1, 1, 69, 3, 68.399271),
    Sketcher.Constraint("DistanceX", 8, 2, -1, 1, 58.709038),
    Sketcher.Constraint("DistanceY", -1, 1, 8, 2, 48.510218),
    Sketcher.Constraint("DistanceY", -1, 1, 13, 1, 23.530121),
    Sketcher.Constraint("DistanceY", -1, 1, 14, 2, 31.16226),
    Sketcher.Constraint("DistanceY", 17, 1, -1, 1, 2.222421),
    Sketcher.Constraint("DistanceX", 18, 2, -1, 1, 92.590171),
    Sketcher.Constraint("DistanceY", 21, 1, -1, 1, 28.112829),
    Sketcher.Constraint("DistanceY", 28, 2, -1, 1, 61.771828),
    Sketcher.Constraint("DistanceY", 40, 2, -1, 1, 69.26846),
    Sketcher.Constraint("DistanceX", -1, 1, 45, 1, 48.550572),
    Sketcher.Constraint("DistanceX", -1, 1, 48, 2, 56.329082),
    Sketcher.Constraint("DistanceY", 48, 2, -1, 1, 34.956782),
    Sketcher.Constraint("DistanceX", -1, 1, 54, 2, 75.492731),
    Sketcher.Constraint("DistanceX", -1, 1, 60, 2, 51.249082),
    Sketcher.Constraint("DistanceX", -1, 1, 68, 2, 11.296762),
    Sketcher.Constraint("DistanceY", -1, 1, 70, 2, 78.330419),
    Sketcher.Constraint("DistanceX", 13, 3, -1, 1, 76.264113),
    Sketcher.Constraint("DistanceX", 33, 3, -1, 1, 25.589244),
])
sketch3.setExpression("Constraints[134]", "Params.sketch3_radius")
sketch3.setExpression("Constraints[135]", "Params.sketch3_length")
pocket1 = doc.addObject("PartDesign::Pocket", "Pocket")
body.addObject(pocket1)
pocket1.Profile = sketch3
pocket1.Type = "ThroughAll"
pocket1.Reversed = True

# Sketch on XY plane
sketch4 = doc.addObject("Sketcher::SketchObject", "Sketch003")
body.addObject(sketch4)
sketch4.AttachmentSupport = (doc.XY_Plane, [""])
sketch4.MapMode = "FlatFace"
sketch4.addGeometry(Part.Ellipse(Vector(-8.54872, 72.199556, 0), Vector(-11.72372, 66.484556, 0), Vector(-8.54872, 66.484556, 0)), False)
sketch4.addConstraint(Sketcher.Constraint("Block", 0))
pocket2 = doc.addObject("PartDesign::Pocket", "Pocket001")
body.addObject(pocket2)
pocket2.Profile = sketch4
pocket2.Type = "ThroughAll"
pocket2.Reversed = True
doc.recompute()

datumline = doc.addObject("PartDesign::Line", "DatumLine")
body.addObject(datumline)
datumline.Placement = App.Placement(Vector(-8.54872, -3.365444, 0), App.Rotation(Vector(0, 0, 1), Vector(0, 0, 1)))
polarpattern = doc.addObject("PartDesign::PolarPattern", "PolarPattern")
body.addObject(polarpattern)
polarpattern.Originals = [pocket2]
polarpattern.Axis = (datumline, [""])
polarpattern.Angle = 360
polarpattern.Occurrences = 18
body.Tip = polarpattern

# Sketch on XY plane
sketch5 = doc.addObject("Sketcher::SketchObject", "Sketch004")
body.addObject(sketch5)
sketch5.AttachmentSupport = (doc.XY_Plane, [""])
sketch5.MapMode = "FlatFace"
sketch5.AttachmentOffset = App.Placement(Vector(0, 0, 0.125 * 25.4), App.Rotation())
sketch5.addGeometry(Part.Circle(Vector(-9, -3, 0), Vector(0, 0, 1), 62), False)
sketch5.addConstraint([
    Sketcher.Constraint("Diameter", 0, Q("4.91 in")),
    Sketcher.Constraint("DistanceX", 0, 3, -1, 1, 8.54872),
    Sketcher.Constraint("DistanceY", 0, 3, -1, 1, 3.365444),
])
sketch5.setExpression("Constraints[0]", "Params.sketch5_diameter")
pocket3 = doc.addObject("PartDesign::Pocket", "Pocket002")
body.addObject(pocket3)
pocket3.Profile = sketch5
pocket3.Type = "ThroughAll"

doc.recompute()
